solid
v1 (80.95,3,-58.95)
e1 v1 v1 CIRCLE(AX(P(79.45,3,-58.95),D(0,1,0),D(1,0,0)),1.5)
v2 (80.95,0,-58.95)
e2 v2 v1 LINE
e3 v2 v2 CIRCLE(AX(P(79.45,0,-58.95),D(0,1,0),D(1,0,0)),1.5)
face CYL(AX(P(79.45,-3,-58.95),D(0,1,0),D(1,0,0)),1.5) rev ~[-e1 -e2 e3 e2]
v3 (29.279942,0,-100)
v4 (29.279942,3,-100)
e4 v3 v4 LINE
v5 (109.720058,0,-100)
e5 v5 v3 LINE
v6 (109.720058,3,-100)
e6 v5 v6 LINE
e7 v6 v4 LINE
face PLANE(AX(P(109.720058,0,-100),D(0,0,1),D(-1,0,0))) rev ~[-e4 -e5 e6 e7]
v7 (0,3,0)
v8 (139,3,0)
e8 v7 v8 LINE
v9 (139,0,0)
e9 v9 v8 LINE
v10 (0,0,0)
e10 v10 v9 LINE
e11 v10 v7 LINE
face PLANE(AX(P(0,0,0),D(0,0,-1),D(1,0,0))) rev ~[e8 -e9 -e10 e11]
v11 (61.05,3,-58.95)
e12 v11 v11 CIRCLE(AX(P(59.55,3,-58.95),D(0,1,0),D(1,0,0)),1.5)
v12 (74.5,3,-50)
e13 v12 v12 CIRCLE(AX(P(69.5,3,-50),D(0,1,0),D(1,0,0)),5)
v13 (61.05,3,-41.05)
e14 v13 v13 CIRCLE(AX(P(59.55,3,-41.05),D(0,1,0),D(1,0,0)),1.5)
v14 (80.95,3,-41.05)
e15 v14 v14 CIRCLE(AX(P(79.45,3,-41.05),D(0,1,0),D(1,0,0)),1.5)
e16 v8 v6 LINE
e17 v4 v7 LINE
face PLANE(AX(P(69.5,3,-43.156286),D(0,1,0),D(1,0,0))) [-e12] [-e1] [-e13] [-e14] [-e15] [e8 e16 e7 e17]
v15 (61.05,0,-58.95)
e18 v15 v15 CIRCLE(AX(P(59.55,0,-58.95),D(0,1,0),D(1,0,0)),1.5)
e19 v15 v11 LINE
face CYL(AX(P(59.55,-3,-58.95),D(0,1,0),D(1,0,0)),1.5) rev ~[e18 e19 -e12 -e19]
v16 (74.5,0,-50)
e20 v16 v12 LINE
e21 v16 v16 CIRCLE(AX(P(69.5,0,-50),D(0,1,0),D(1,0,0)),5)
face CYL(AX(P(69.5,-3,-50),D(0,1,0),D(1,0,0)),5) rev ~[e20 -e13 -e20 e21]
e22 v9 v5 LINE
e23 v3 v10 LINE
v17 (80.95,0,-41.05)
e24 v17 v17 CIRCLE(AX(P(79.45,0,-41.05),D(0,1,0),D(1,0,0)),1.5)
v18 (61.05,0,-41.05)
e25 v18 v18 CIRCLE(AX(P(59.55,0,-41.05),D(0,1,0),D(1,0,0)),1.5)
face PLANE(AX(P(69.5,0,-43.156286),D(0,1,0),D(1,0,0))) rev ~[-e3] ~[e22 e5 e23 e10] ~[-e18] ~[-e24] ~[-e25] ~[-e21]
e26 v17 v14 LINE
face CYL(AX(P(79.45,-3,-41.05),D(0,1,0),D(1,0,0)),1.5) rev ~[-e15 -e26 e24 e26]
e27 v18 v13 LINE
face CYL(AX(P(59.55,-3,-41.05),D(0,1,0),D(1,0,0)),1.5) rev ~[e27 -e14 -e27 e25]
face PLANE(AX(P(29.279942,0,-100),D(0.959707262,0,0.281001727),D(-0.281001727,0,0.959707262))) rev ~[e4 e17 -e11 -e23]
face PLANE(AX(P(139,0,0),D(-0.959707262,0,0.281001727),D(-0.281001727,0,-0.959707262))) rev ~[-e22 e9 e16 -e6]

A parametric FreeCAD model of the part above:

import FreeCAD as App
import Part
import Sketcher
Q = App.Units.Quantity

doc = App.newDocument("Part")
params = doc.addObject("Spreadsheet::Sheet", "Params")
for row, (alias, value) in enumerate([
    ("sketch1_width", "139 mm"),
    ("pad1_length", "3 mm"),
    ("sketch2_diameter", "10 mm"),
    ("hole_diameter", "10 mm"),
    ("hole_depth", "3 mm"),
    ("sketch3_diameter", "3 mm"),
    ("hole2_diameter", "3 mm"),
    ("hole2_depth", "3 mm"),
], start=1):
    params.set(f"A{row}", alias)
    params.set(f"B{row}", "=" + value)
    params.setAlias(f"B{row}", alias)

body = doc.addObject("PartDesign::Body", "Body")

sketch1 = doc.addObject("Sketcher::SketchObject", "Sketch")
body.addObject(sketch1)
sketch1.AttachmentSupport = (doc.XZ_Plane, [""])
sketch1.MapMode = "FlatFace"
sketch1.addGeometry([
    Part.LineSegment(App.Vector(0, 0, 0), App.Vector(139, 0, 0)),
    Part.LineSegment(App.Vector(139, 0, 0), App.Vector(110, -100, 0)),
    Part.LineSegment(App.Vector(110, -100, 0), App.Vector(29, -100, 0)),
    Part.LineSegment(App.Vector(29, -100, 0), App.Vector(0, 0, 0)),
], False)
sketch1.addConstraint([
    Sketcher.Constraint("Coincident", 0, 2, 1, 1),
    Sketcher.Constraint("Coincident", 1, 2, 2, 1),
    Sketcher.Constraint("Coincident", 2, 2, 3, 1),
    Sketcher.Constraint("Coincident", 3, 2, 0, 1),
    Sketcher.Constraint("Horizontal", 0),
    Sketcher.Constraint("Horizontal", 2),
    Sketcher.Constraint("Coincident", 3, 2, -1, 1),
    Sketcher.Constraint("Equal", 1, 3),
    Sketcher.Constraint("DistanceX", 0, 1, 0, 2, 139.0),
    Sketcher.Constraint("DistanceY", 1, 2, -1, 1, 100.0),
    Sketcher.Constraint("Angle", 1, Q("-106.32 deg")),
])
sketch1.setExpression("Constraints[8]", "Params.sketch1_width")
pad1 = doc.addObject("PartDesign::Pad", "Pad")
body.addObject(pad1)
pad1.Profile = sketch1
pad1.setExpression("Length", "Params.pad1_length")
pad1.Reversed = True

sketch2 = doc.addObject("Sketcher::SketchObject", "Sketch001")
body.addObject(sketch2)
sketch2.AttachmentSupport = (doc.XZ_Plane, [""])
sketch2.MapMode = "FlatFace"
sketch2.addGeometry(Part.Circle(App.Vector(70, -50, 0), App.Vector(0, 0, 1), 5), False)
sketch2.addConstraint([
    Sketcher.Constraint("Diameter", 0, 10.0),
    Sketcher.Constraint("DistanceY", 0, 3, -1, 1, 50.0),
    Sketcher.Constraint("DistanceX", -1, 1, 0, 3, 69.5),
])
sketch2.setExpression("Constraints[0]", "Params.sketch2_diameter")
doc.recompute()
hole = doc.addObject("PartDesign::Hole", "Hole")
body.addObject(hole)
hole.Profile = sketch2
hole.ThreadType = "None"
hole.setExpression("Diameter", "Params.hole_diameter")
hole.DepthType = "Dimension"
hole.setExpression("Depth", "Params.hole_depth")
hole.DrillPoint = "Flat"

sketch3 = doc.addObject("Sketcher::SketchObject", "Sketch002")
body.addObject(sketch3)
sketch3.AttachmentSupport = (doc.XZ_Plane, [""])
sketch3.MapMode = "FlatFace"
sketch3.addGeometry([
    Part.Circle(App.Vector(59.5, -41, 0), App.Vector(0, 0, 1), 1.5),
    Part.Circle(App.Vector(79.5, -41, 0), App.Vector(0, 0, 1), 1.5),
    Part.Circle(App.Vector(79.5, -59, 0), App.Vector(0, 0, 1), 1.5),
    Part.Circle(App.Vector(59.5, -59, 0), App.Vector(0, 0, 1), 1.5),
], False)
sketch3.addConstraint([
    Sketcher.Constraint("Equal", 0, 1),
    Sketcher.Constraint("Equal", 1, 2),
    Sketcher.Constraint("Equal", 2, 3),
    Sketcher.Constraint("Horizontal", 0, 3, 1, 3),
    Sketcher.Constraint("Horizontal", 2, 3, 3, 3),
    Sketcher.Constraint("Vertical", 1, 3, 2, 3),
    Sketcher.Constraint("Vertical", 0, 3, 3, 3),
    Sketcher.Constraint("Diameter", 0, 3.0),
    Sketcher.Constraint("DistanceX", 0, 3, 1, 3, 19.9),
    Sketcher.Constraint("DistanceY", 2, 3, 1, 3, 17.9),
    Sketcher.Constraint("DistanceX", -1, 1, 0, 3, 59.55),
    Sketcher.Constraint("DistanceY", 0, 3, -1, 1, 41.05),
])
sketch3.setExpression("Constraints[7]", "Params.sketch3_diameter")
doc.recompute()
hole2 = doc.addObject("PartDesign::Hole", "Hole001")
body.addObject(hole2)
hole2.Profile = sketch3
hole2.ThreadType = "None"
hole2.setExpression("Diameter", "Params.hole2_diameter")
hole2.DepthType = "Dimension"
hole2.setExpression("Depth", "Params.hole2_depth")
hole2.DrillPoint = "Flat"

doc.recompute()
